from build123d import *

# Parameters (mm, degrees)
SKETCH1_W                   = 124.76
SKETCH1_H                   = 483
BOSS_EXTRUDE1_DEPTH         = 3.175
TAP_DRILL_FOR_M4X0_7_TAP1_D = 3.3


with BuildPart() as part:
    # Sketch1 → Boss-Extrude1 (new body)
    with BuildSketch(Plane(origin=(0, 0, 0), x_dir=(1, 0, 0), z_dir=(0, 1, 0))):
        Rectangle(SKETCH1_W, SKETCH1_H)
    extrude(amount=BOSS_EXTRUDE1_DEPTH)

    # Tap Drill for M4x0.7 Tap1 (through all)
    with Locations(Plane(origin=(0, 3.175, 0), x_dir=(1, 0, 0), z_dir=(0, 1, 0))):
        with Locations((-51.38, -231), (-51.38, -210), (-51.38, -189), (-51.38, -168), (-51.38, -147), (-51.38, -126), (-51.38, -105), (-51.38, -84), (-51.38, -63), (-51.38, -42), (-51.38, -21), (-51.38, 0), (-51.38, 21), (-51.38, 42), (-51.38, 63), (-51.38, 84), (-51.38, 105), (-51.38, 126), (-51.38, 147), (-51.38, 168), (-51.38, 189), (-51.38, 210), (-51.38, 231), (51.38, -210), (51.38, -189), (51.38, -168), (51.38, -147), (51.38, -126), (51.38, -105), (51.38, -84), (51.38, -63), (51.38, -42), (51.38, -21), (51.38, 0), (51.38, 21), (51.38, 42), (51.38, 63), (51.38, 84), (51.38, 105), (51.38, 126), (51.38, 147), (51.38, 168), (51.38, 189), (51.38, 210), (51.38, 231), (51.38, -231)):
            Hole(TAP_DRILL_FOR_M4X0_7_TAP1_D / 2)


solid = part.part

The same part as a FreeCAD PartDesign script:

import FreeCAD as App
import Part
import Sketcher
from FreeCAD import Vector
Q = App.Units.Quantity


def add_polygon(sketch, points):
    """Adds a closed chain of lines whose ends are joined by coincident constraints."""
    first, n = sketch.GeometryCount, len(points)
    for a, b in zip(points, points[1:] + points[:1]):
        sketch.addGeometry(Part.LineSegment(App.Vector(*a, 0), App.Vector(*b, 0)), False)
    for i in range(n):
        sketch.addConstraint(Sketcher.Constraint("Coincident", first + i, 2, first + (i + 1) % n, 1))

doc = App.newDocument("Part")
params = doc.addObject("Spreadsheet::Sheet", "Params")
for row, (alias, value) in enumerate([
    ("sketch1_height", "483 mm"),
    ("sketch1_width", "124.76 mm"),
    ("pad1_length", "3.175 mm"),
    ("sketch2_diameter", "3.3 mm"),
    ("hole_diameter", "3.3 mm"),
], start=1):
    params.set(f"A{row}", alias)
    params.set(f"B{row}", "=" + value)
    params.setAlias(f"B{row}", alias)

body = doc.addObject("PartDesign::Body", "Body")

sketch1 = doc.addObject("Sketcher::SketchObject", "Sketch")
body.addObject(sketch1)
sketch1.AttachmentSupport = (doc.XZ_Plane, [""])
sketch1.MapMode = "FlatFace"
add_polygon(sketch1, [(-62, -242), (-62, 242), (62, 242), (62, -242)])
sketch1.addConstraint([
    Sketcher.Constraint("Vertical", 0),
    Sketcher.Constraint("Horizontal", 1),
    Sketcher.Constraint("Vertical", 2),
    Sketcher.Constraint("Horizontal", 3),
    Sketcher.Constraint("Symmetric", 0, 2, 2, 2, -1, 1),
    Sketcher.Constraint("DistanceY", 0, 1, 0, 2, Q("483 mm")),
    Sketcher.Constraint("DistanceX", 1, 1, 1, 2, Q("124.76 mm")),
])
sketch1.setExpression("Constraints[9]", "Params.sketch1_height")
sketch1.setExpression("Constraints[10]", "Params.sketch1_width")
pad1 = doc.addObject("PartDesign::Pad", "Pad")
body.addObject(pad1)
pad1.Profile = sketch1
pad1.setExpression("Length", "Params.pad1_length")
pad1.Reversed = True

sketch2 = doc.addObject("Sketcher::SketchObject", "Sketch001")
body.addObject(sketch2)
sketch2.AttachmentSupport = (doc.XZ_Plane, [""])
sketch2.MapMode = "FlatFace"
sketch2.AttachmentOffset = App.Placement(Vector(0, 0, -3.175), App.Rotation())
sketch2.addGeometry([
    Part.Circle(Vector(-51.4, 231, 0), Vector(0, 0, 1), 1.6),
    Part.Circle(Vector(-51.4, 210, 0), Vector(0, 0, 1), 1.6),
    Part.Circle(Vector(-51.4, 189, 0), Vector(0, 0, 1), 1.6),
    Part.Circle(Vector(-51.4, 168, 0), Vector(0, 0, 1), 1.6),
    Part.Circle(Vector(-51.4, 147, 0), Vector(0, 0, 1), 1.6),
    Part.Circle(Vector(-51.4, 126, 0), Vector(0, 0, 1), 1.6),
    Part.Circle(Vector(-51.4, 105, 0), Vector(0, 0, 1), 1.6),
    Part.Circle(Vector(-51.4, 84, 0), Vector(0, 0, 1), 1.6),
    Part.Circle(Vector(-51.4, 63, 0), Vector(0, 0, 1), 1.6),
    Part.Circle(Vector(-51.4, 42, 0), Vector(0, 0, 1), 1.6),
    Part.Circle(Vector(-51.4, 21, 0), Vector(0, 0, 1), 1.6),
    Part.Circle(Vector(-51.4, 0, 0), Vector(0, 0, 1), 1.6),
    Part.Circle(Vector(-51.4, -21, 0), Vector(0, 0, 1), 1.6),
    Part.Circle(Vector(-51.4, -42, 0), Vector(0, 0, 1), 1.6),
    Part.Circle(Vector(-51.4, -63, 0), Vector(0, 0, 1), 1.6),
    Part.Circle(Vector(-51.4, -84, 0), Vector(0, 0, 1), 1.6),
    Part.Circle(Vector(-51.4, -105, 0), Vector(0, 0, 1), 1.6),
    Part.Circle(Vector(-51.4, -126, 0), Vector(0, 0, 1), 1.6),
    Part.Circle(Vector(-51.4, -147, 0), Vector(0, 0, 1), 1.6),
    Part.Circle(Vector(-51.4, -168, 0), Vector(0, 0, 1), 1.6),
    Part.Circle(Vector(-51.4, -189, 0), Vector(0, 0, 1), 1.6),
    Part.Circle(Vector(-51.4, -210, 0), Vector(0, 0, 1), 1.6),
    Part.Circle(Vector(-51.4, -231, 0), Vector(0, 0, 1), 1.6),
    Part.Circle(Vector(51.4, 210, 0), Vector(0, 0, 1), 1.6),
    Part.Circle(Vector(51.4, 189, 0), Vector(0, 0, 1), 1.6),
    Part.Circle(Vector(51.4, 168, 0), Vector(0, 0, 1), 1.6),
    Part.Circle(Vector(51.4, 147, 0), Vector(0, 0, 1), 1.6),
    Part.Circle(Vector(51.4, 126, 0), Vector(0, 0, 1), 1.6),
    Part.Circle(Vector(51.4, 105, 0), Vector(0, 0, 1), 1.6),
    Part.Circle(Vector(51.4, 84, 0), Vector(0, 0, 1), 1.6),
    Part.Circle(Vector(51.4, 63, 0), Vector(0, 0, 1), 1.6),
    Part.Circle(Vector(51.4, 42, 0), Vector(0, 0, 1), 1.6),
    Part.Circle(Vector(51.4, 21, 0), Vector(0, 0, 1), 1.6),
    Part.Circle(Vector(51.4, 0, 0), Vector(0, 0, 1), 1.6),
    Part.Circle(Vector(51.4, -21, 0), Vector(0, 0, 1), 1.6),
    Part.Circle(Vector(51.4, -42, 0), Vector(0, 0, 1), 1.6),
    Part.Circle(Vector(51.4, -63, 0), Vector(0, 0, 1), 1.6),
    Part.Circle(Vector(51.4, -84, 0), Vector(0, 0, 1), 1.6),
    Part.Circle(Vector(51.4, -105, 0), Vector(0, 0, 1), 1.6),
    Part.Circle(Vector(51.4, -126, 0), Vector(0, 0, 1), 1.6),
    Part.Circle(Vector(51.4, -147, 0), Vector(0, 0, 1), 1.6),
    Part.Circle(Vector(51.4, -168, 0), Vector(0, 0, 1), 1.6),
    Part.Circle(Vector(51.4, -189, 0), Vector(0, 0, 1), 1.6),
    Part.Circle(Vector(51.4, -210, 0), Vector(0, 0, 1), 1.6),
    Part.Circle(Vector(51.4, -231, 0), Vector(0, 0, 1), 1.6),
    Part.Circle(Vector(51.4, 231, 0), Vector(0, 0, 1), 1.6),
], False)
sketch2.addConstraint([
    Sketcher.Constraint("Equal", 0, 1),
    Sketcher.Constraint("Equal", 1, 2),
    Sketcher.Constraint("Equal", 2, 3),
    Sketcher.Constraint("Equal", 3, 4),
    Sketcher.Constraint("Equal", 4, 5),
    Sketcher.Constraint("Equal", 5, 6),
    Sketcher.Constraint("Equal", 6, 7),
    Sketcher.Constraint("Equal", 7, 8),
    Sketcher.Constraint("Equal", 8, 9),
    Sketcher.Constraint("Equal", 9, 10),
    Sketcher.Constraint("Equal", 10, 11),
    Sketcher.Constraint("Equal", 11, 12),
    Sketcher.Constraint("Equal", 12, 13),
    Sketcher.Constraint("Equal", 13, 14),
    Sketcher.Constraint("Equal", 14, 15),
    Sketcher.Constraint("Equal", 15, 16),
    Sketcher.Constraint("Equal", 16, 17),
    Sketcher.Constraint("Equal", 17, 18),
    Sketcher.Constraint("Equal", 18, 19),
    Sketcher.Constraint("Equal", 19, 20),
    Sketcher.Constraint("Equal", 20, 21),
    Sketcher.Constraint("Equal", 21, 22),
    Sketcher.Constraint("Equal", 22, 23),
    Sketcher.Constraint("Equal", 23, 24),
    Sketcher.Constraint("Equal", 24, 25),
    Sketcher.Constraint("Equal", 25, 26),
    Sketcher.Constraint("Equal", 26, 27),
    Sketcher.Constraint("Equal", 27, 28),
    Sketcher.Constraint("Equal", 28, 29),
    Sketcher.Constraint("Equal", 29, 30),
    Sketcher.Constraint("Equal", 30, 31),
    Sketcher.Constraint("Equal", 31, 32),
    Sketcher.Constraint("Equal", 32, 33),
    Sketcher.Constraint("Equal", 33, 34),
    Sketcher.Constraint("Equal", 34, 35),
    Sketcher.Constraint("Equal", 35, 36),
    Sketcher.Constraint("Equal", 36, 37),
    Sketcher.Constraint("Equal", 37, 38),
    Sketcher.Constraint("Equal", 38, 39),
    Sketcher.Constraint("Equal", 39, 40),
    Sketcher.Constraint("Equal", 40, 41),
    Sketcher.Constraint("Equal", 41, 42),
    Sketcher.Constraint("Equal", 42, 43),
    Sketcher.Constraint("Equal", 43, 44),
    Sketcher.Constraint("Equal", 44, 45),
    Sketcher.Constraint("Symmetric", 21, 3, 23, 3, -1, 1),
    Sketcher.Constraint("Symmetric", 20, 3, 24, 3, -1, 1),
    Sketcher.Constraint("Symmetric", 19, 3, 25, 3, -1, 1),
    Sketcher.Constraint("Symmetric", 18, 3, 26, 3, -1, 1),
    Sketcher.Constraint("Symmetric", 17, 3, 27, 3, -1, 1),
    Sketcher.Constraint("Symmetric", 16, 3, 28, 3, -1, 1),
    Sketcher.Constraint("Symmetric", 15, 3, 29, 3, -1, 1),
    Sketcher.Constraint("Symmetric", 14, 3, 30, 3, -1, 1),
    Sketcher.Constraint("Symmetric", 13, 3, 31, 3, -1, 1),
    Sketcher.Constraint("Symmetric", 12, 3, 32, 3, -1, 1),
    Sketcher.Constraint("Symmetric", 11, 3, 33, 3, -1, 1),
    Sketcher.Constraint("Symmetric", 10, 3, 34, 3, -1, 1),
    Sketcher.Constraint("Symmetric", 9, 3, 35, 3, -1, 1),
    Sketcher.Constraint("Symmetric", 8, 3, 36, 3, -1, 1),
    Sketcher.Constraint("Symmetric", 7, 3, 37, 3, -1, 1),
    Sketcher.Constraint("Symmetric", 6, 3, 38, 3, -1, 1),
    Sketcher.Constraint("Symmetric", 5, 3, 39, 3, -1, 1),
    Sketcher.Constraint("Symmetric", 4, 3, 40, 3, -1, 1),
    Sketcher.Constraint("Symmetric", 3, 3, 41, 3, -1, 1),
    Sketcher.Constraint("Symmetric", 2, 3, 42, 3, -1, 1),
    Sketcher.Constraint("Symmetric", 1, 3, 43, 3, -1, 1),
    Sketcher.Constraint("Symmetric", 0, 3, 44, 3, -1, 1),
    Sketcher.Constraint("Symmetric", 22, 3, 45, 3, -1, 1),
    Sketcher.Constraint("Symmetric", 1, 3, 23, 3, -2),
    Sketcher.Constraint("Symmetric", 2, 3, 24, 3, -2),
    Sketcher.Constraint("Symmetric", 3, 3, 25, 3, -2),
    Sketcher.Constraint("Symmetric", 4, 3, 26, 3, -2),
    Sketcher.Constraint("Symmetric", 5, 3, 27, 3, -2),
    Sketcher.Constraint("Symmetric", 6, 3, 28, 3, -2),
    Sketcher.Constraint("Symmetric", 7, 3, 29, 3, -2),
    Sketcher.Constraint("Symmetric", 8, 3, 30, 3, -2),
    Sketcher.Constraint("Symmetric", 9, 3, 31, 3, -2),
    Sketcher.Constraint("Symmetric", 10, 3, 32, 3, -2),
    Sketcher.Constraint("Symmetric", 22, 3, 44, 3, -2),
    Sketcher.Constraint("PointOnObject", 11, 3, -1),
    Sketcher.Constraint("Vertical", 0, 3, 1, 3),
    Sketcher.Constraint("Vertical", 1, 3, 2, 3),
    Sketcher.Constraint("Vertical", 2, 3, 3, 3),
    Sketcher.Constraint("Vertical", 3, 3, 4, 3),
    Sketcher.Constraint("Vertical", 4, 3, 5, 3),
    Sketcher.Constraint("Vertical", 5, 3, 6, 3),
    Sketcher.Constraint("Vertical", 6, 3, 7, 3),
    Sketcher.Constraint("Vertical", 7, 3, 8, 3),
    Sketcher.Constraint("Vertical", 8, 3, 9, 3),
    Sketcher.Constraint("Vertical", 9, 3, 10, 3),
    Sketcher.Constraint("Vertical", 10, 3, 11, 3),
    Sketcher.Constraint("Diameter", 0, Q("3.3 mm")),
    Sketcher.Constraint("DistanceY", -1, 1, 0, 3, Q("231 mm")),
    Sketcher.Constraint("DistanceY", -1, 1, 1, 3, Q("210 mm")),
    Sketcher.Constraint("DistanceY", -1, 1, 2, 3, Q("189 mm")),
    Sketcher.Constraint("DistanceY", -1, 1, 3, 3, Q("168 mm")),
    Sketcher.Constraint("DistanceY", -1, 1, 4, 3, Q("147 mm")),
    Sketcher.Constraint("DistanceY", -1, 1, 5, 3, Q("126 mm")),
    Sketcher.Constraint("DistanceY", -1, 1, 6, 3, Q("105 mm")),
    Sketcher.Constraint("DistanceY", -1, 1, 7, 3, Q("84 mm")),
    Sketcher.Constraint("DistanceY", -1, 1, 8, 3, Q("63 mm")),
    Sketcher.Constraint("DistanceY", -1, 1, 9, 3, Q("42 mm")),
    Sketcher.Constraint("DistanceY", -1, 1, 10, 3, Q("21 mm")),
    Sketcher.Constraint("DistanceX", 0, 3, -1, 1, Q("51.38 mm")),
])
sketch2.setExpression("Constraints[91]", "Params.sketch2_diameter")
doc.recompute()
hole = doc.addObject("PartDesign::Hole", "Hole")
body.addObject(hole)
hole.Profile = sketch2
hole.ThreadType = "None"
hole.setExpression("Diameter", "Params.hole_diameter")
hole.DepthType = "ThroughAll"
hole.Reversed = True

doc.recompute()
